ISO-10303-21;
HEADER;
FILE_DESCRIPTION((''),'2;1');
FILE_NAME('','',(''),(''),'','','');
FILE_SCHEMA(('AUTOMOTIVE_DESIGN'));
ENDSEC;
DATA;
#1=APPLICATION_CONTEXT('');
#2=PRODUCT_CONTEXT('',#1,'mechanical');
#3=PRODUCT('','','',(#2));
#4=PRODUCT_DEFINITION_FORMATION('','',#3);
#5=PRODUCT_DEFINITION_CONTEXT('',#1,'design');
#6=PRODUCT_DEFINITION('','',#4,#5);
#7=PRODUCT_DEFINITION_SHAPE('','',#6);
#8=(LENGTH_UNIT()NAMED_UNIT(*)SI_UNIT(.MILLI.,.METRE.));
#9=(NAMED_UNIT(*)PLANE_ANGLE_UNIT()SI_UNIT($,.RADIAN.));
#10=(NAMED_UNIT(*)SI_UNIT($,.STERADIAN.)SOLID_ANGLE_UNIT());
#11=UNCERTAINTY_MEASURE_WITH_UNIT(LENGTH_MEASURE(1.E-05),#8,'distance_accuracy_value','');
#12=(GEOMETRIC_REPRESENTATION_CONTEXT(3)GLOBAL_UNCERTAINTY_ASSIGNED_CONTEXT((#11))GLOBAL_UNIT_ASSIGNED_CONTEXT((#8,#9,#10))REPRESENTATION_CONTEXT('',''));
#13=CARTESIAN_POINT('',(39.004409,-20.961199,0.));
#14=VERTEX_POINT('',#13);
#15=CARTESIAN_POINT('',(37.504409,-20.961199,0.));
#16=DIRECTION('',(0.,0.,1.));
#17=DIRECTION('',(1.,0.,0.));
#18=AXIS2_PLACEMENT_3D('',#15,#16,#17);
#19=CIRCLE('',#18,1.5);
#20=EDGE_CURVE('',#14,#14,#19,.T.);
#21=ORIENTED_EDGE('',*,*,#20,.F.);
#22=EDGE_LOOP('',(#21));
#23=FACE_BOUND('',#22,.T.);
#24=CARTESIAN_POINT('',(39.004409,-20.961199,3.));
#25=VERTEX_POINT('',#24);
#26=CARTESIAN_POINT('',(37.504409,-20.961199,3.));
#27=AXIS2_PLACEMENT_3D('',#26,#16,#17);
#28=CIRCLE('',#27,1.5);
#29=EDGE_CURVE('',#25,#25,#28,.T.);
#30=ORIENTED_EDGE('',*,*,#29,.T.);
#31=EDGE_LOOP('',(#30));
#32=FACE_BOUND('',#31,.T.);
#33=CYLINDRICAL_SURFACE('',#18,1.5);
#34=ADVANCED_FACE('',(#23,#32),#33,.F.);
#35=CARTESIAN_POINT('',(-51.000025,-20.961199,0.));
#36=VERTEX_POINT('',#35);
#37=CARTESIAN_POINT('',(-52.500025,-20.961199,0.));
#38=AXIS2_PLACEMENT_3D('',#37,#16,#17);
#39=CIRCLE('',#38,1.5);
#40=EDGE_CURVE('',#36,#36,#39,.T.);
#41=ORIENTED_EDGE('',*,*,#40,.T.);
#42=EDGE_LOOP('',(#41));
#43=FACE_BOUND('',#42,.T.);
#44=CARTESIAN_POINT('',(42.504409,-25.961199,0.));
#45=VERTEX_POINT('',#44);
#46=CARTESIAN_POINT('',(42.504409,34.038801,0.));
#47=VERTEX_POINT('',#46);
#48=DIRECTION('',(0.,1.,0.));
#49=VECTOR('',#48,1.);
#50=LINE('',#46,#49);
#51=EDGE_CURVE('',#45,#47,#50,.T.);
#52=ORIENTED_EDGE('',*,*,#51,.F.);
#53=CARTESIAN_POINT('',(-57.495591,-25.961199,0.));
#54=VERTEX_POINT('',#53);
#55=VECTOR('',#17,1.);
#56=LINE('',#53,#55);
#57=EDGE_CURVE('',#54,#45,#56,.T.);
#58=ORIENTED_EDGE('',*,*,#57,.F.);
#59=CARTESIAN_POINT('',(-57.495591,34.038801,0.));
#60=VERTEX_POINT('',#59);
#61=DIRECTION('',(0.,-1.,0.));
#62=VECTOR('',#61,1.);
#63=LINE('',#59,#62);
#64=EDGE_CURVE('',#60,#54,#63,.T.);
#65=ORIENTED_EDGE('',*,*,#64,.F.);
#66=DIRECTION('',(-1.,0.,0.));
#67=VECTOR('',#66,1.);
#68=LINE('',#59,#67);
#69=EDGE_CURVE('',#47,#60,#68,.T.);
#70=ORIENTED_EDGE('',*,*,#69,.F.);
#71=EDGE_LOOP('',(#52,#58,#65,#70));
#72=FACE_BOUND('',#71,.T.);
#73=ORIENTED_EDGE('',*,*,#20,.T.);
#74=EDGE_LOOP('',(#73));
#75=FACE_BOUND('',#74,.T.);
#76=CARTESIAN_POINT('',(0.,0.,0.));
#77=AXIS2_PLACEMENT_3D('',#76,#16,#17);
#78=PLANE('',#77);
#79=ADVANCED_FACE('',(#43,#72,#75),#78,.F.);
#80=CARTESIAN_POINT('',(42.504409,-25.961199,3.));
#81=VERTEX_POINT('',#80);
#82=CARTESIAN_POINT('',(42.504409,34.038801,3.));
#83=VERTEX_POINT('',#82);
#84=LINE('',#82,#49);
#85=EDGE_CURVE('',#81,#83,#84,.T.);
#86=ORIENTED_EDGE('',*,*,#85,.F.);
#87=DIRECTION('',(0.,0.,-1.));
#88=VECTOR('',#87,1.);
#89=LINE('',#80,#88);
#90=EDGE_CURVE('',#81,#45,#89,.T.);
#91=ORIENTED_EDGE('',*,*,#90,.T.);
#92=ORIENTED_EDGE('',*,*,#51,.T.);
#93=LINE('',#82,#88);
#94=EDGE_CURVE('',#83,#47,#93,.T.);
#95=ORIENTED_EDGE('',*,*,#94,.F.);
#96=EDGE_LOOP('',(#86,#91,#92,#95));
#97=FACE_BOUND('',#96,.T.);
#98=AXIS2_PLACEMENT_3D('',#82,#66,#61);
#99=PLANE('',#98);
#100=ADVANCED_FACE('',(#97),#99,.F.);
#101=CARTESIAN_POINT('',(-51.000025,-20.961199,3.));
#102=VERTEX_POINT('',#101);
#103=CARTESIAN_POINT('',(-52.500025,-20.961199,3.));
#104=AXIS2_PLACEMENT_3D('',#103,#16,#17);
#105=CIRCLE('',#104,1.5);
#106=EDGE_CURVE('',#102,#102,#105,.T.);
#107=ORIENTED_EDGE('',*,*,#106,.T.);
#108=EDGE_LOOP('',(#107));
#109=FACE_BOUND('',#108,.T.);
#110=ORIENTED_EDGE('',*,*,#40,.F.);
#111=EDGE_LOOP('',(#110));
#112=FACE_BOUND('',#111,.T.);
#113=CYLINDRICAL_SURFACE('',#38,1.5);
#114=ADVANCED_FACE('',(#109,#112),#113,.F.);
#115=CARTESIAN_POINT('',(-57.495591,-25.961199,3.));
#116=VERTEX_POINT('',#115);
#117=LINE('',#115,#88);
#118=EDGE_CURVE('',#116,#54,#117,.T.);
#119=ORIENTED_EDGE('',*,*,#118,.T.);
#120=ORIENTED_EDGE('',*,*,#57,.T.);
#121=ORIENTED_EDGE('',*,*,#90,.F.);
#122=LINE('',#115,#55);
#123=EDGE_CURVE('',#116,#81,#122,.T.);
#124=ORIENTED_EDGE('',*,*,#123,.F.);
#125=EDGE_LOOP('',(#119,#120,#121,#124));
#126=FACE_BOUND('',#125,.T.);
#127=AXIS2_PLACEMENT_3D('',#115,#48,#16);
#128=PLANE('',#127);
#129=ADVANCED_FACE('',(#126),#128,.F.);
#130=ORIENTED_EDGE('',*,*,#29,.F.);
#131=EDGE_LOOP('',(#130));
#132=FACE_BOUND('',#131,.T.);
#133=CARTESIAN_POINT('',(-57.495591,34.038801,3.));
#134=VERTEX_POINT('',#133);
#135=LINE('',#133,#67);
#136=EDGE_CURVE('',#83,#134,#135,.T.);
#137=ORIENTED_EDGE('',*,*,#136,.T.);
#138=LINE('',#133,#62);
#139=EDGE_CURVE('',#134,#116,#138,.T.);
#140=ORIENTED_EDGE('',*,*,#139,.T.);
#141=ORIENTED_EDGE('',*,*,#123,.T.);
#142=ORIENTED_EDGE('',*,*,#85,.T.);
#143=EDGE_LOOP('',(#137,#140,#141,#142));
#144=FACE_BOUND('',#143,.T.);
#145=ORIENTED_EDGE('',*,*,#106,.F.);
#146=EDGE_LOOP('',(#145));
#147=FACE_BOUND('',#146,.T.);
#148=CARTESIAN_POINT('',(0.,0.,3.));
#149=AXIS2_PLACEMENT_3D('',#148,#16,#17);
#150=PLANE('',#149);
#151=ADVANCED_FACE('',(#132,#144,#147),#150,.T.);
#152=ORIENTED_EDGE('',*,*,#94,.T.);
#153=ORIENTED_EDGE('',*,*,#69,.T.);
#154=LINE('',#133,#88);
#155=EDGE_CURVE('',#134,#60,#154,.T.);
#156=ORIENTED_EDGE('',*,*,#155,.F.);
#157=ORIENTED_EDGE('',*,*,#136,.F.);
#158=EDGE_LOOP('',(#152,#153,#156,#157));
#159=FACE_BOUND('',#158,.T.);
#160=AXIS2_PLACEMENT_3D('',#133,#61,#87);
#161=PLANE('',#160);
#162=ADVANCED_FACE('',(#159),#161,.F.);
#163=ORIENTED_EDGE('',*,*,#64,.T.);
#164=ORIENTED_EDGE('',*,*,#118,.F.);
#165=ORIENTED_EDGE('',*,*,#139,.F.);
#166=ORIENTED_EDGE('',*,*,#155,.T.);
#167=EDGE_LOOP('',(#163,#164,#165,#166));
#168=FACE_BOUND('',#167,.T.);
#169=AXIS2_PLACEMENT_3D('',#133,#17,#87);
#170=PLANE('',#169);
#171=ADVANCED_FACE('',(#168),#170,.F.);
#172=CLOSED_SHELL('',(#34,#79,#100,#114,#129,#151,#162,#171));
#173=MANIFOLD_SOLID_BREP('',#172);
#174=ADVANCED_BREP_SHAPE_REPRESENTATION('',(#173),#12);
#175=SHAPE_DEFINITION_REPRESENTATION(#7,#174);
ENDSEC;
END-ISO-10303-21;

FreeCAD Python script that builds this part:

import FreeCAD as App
import Part
import Sketcher

doc = App.newDocument("Part")
body = doc.addObject("PartDesign::Body", "Body")

# Sketch on XY plane
sketch1 = body.newObject("Sketcher::SketchObject", "Sketch")
sketch1.AttachmentSupport = (doc.getObject("XY_Plane"), [""])
sketch1.MapMode = "FlatFace"
sketch1.addGeometry([
    Part.LineSegment(App.Vector(-57, 34, 0), App.Vector(-57, -26, 0)),
    Part.LineSegment(App.Vector(-57, -26, 0), App.Vector(43, -26, 0)),
    Part.LineSegment(App.Vector(43, -26, 0), App.Vector(43, 34, 0)),
    Part.LineSegment(App.Vector(43, 34, 0), App.Vector(-57, 34, 0)),
], False)
sketch1.addConstraint([
    Sketcher.Constraint("Coincident", 0, 2, 1, 1),
    Sketcher.Constraint("Coincident", 1, 2, 2, 1),
    Sketcher.Constraint("Coincident", 2, 2, 3, 1),
    Sketcher.Constraint("Coincident", 3, 2, 0, 1),
    Sketcher.Constraint("Vertical", 0),
    Sketcher.Constraint("Horizontal", 1),
    Sketcher.Constraint("Vertical", 2),
    Sketcher.Constraint("Horizontal", 3),
    Sketcher.Constraint("DistanceX", 1, 1, 1, 2, 100.0),
    Sketcher.Constraint("DistanceY", 0, 2, 0, 1, 60.0),
    Sketcher.Constraint("DistanceY", 0, 2, -1, 1, 25.961199),
    Sketcher.Constraint("DistanceX", 0, 2, -1, 1, 57.495591),
])
pad1 = body.newObject("PartDesign::Pad", "Pad")
pad1.Profile = sketch1
pad1.Length = 3

# Sketch on XY plane
sketch2 = body.newObject("Sketcher::SketchObject", "Sketch001")
sketch2.AttachmentSupport = (doc.getObject("XY_Plane"), [""])
sketch2.MapMode = "FlatFace"
sketch2.AttachmentOffset = App.Placement(App.Vector(0, 0, 3), App.Rotation())
sketch2.addGeometry([
    Part.Circle(App.Vector(37.5, -21, 0), App.Vector(0, 0, 1), 1.5),
    Part.Circle(App.Vector(-52.5, -21, 0), App.Vector(0, 0, 1), 1.5),
], False)
sketch2.addConstraint([
    Sketcher.Constraint("Equal", 0, 1),
    Sketcher.Constraint("Horizontal", 0, 3, 1, 3),
    Sketcher.Constraint("Diameter", 0, 3.0),
    Sketcher.Constraint("DistanceY", 0, 3, -1, 1, 20.961199),
    Sketcher.Constraint("DistanceX", -1, 1, 0, 3, 37.504409),
    Sketcher.Constraint("DistanceX", 1, 3, -1, 1, 52.500025),
])
pocket1 = body.newObject("PartDesign::Pocket", "Pocket")
pocket1.Profile = sketch2
pocket1.Length = 3

doc.recompute()
